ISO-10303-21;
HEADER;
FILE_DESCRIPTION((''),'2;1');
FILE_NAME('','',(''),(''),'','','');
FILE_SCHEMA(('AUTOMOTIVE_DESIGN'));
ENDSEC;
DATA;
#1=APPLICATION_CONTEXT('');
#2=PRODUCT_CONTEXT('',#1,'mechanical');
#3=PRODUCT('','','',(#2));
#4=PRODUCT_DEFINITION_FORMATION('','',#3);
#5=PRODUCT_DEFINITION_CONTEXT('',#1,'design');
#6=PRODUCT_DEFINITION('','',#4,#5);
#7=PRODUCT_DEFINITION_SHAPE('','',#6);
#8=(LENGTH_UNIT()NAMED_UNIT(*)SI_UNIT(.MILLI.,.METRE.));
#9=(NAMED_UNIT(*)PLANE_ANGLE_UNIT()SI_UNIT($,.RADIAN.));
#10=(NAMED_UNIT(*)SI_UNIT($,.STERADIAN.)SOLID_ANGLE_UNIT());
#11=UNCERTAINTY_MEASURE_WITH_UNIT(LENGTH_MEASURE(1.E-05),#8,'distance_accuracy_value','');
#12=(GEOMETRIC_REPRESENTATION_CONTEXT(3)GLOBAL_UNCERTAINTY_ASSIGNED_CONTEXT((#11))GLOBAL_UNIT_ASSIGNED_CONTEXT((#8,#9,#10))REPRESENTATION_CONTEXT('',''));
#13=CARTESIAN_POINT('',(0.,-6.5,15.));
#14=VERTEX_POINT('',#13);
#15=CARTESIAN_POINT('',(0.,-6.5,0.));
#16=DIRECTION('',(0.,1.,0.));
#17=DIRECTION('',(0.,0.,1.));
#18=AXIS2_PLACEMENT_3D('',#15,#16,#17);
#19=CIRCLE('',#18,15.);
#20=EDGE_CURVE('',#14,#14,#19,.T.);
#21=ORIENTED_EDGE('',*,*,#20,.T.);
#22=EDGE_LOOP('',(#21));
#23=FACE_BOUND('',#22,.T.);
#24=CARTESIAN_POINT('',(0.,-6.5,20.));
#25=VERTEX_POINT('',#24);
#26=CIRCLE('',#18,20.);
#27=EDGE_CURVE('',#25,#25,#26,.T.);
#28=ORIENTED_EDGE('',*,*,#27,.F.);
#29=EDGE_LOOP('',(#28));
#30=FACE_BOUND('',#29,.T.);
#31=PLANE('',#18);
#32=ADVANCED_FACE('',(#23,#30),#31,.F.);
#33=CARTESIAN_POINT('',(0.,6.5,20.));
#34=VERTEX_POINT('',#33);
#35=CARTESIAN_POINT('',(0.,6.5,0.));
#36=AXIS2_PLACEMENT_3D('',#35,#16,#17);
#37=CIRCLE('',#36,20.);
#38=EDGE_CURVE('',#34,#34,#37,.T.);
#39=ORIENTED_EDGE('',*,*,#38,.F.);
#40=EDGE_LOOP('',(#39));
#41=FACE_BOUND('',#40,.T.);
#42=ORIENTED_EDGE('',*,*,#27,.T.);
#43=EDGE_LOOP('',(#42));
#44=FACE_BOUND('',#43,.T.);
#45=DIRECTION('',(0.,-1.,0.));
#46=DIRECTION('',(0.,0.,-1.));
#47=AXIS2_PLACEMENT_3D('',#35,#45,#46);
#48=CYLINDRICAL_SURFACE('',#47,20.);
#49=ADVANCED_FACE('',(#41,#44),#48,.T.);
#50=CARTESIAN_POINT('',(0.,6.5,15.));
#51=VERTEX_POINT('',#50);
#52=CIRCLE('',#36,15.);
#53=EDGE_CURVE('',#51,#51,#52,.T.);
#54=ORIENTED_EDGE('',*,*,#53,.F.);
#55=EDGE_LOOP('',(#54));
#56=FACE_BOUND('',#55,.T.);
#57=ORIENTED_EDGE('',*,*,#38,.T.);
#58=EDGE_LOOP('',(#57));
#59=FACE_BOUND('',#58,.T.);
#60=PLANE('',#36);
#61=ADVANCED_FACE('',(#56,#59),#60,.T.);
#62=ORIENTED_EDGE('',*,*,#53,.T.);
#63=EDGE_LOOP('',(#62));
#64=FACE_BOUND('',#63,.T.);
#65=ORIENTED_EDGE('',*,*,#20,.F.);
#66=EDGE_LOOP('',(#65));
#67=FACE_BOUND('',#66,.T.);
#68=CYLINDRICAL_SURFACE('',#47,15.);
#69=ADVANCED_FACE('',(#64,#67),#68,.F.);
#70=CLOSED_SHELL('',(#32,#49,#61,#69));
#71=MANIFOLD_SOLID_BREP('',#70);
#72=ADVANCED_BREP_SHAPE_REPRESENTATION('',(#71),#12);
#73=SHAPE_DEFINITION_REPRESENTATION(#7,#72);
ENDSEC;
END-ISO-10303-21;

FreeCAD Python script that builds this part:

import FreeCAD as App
import Part
import Sketcher
from FreeCAD import Vector

doc = App.newDocument("Part")
params = doc.addObject("Spreadsheet::Sheet", "Params")
for row, (alias, value) in enumerate([
    ("sketch1_diameter", "40 mm"),
    ("sketch1_diameter2", "30 mm"),
    ("pad1_length", "13 mm"),
], start=1):
    params.set(f"A{row}", alias)
    params.set(f"B{row}", "=" + value)
    params.setAlias(f"B{row}", alias)

body = doc.addObject("PartDesign::Body", "Body")

sketch1 = body.newObject("Sketcher::SketchObject", "Sketch")
sketch1.AttachmentSupport = (doc.getObject("XZ_Plane"), [""])
sketch1.MapMode = "FlatFace"
sketch1.addGeometry([
    Part.Circle(Vector(0, 0, 0), Vector(0, 0, 1), 20),
    Part.Circle(Vector(0, 0, 0), Vector(0, 0, 1), 15),
], False)
sketch1.addConstraint([
    Sketcher.Constraint("Coincident", 0, 3, -1, 1),
    Sketcher.Constraint("Coincident", 1, 3, -1, 1),
    Sketcher.Constraint("Diameter", 0, 40.0),
    Sketcher.Constraint("Diameter", 1, 30.0),
])
sketch1.setExpression("Constraints[2]", "Params.sketch1_diameter")
sketch1.setExpression("Constraints[3]", "Params.sketch1_diameter2")
pad1 = body.newObject("PartDesign::Pad", "Pad")
pad1.Profile = sketch1
pad1.setExpression("Length", "Params.pad1_length")
pad1.Midplane = True

doc.recompute()
